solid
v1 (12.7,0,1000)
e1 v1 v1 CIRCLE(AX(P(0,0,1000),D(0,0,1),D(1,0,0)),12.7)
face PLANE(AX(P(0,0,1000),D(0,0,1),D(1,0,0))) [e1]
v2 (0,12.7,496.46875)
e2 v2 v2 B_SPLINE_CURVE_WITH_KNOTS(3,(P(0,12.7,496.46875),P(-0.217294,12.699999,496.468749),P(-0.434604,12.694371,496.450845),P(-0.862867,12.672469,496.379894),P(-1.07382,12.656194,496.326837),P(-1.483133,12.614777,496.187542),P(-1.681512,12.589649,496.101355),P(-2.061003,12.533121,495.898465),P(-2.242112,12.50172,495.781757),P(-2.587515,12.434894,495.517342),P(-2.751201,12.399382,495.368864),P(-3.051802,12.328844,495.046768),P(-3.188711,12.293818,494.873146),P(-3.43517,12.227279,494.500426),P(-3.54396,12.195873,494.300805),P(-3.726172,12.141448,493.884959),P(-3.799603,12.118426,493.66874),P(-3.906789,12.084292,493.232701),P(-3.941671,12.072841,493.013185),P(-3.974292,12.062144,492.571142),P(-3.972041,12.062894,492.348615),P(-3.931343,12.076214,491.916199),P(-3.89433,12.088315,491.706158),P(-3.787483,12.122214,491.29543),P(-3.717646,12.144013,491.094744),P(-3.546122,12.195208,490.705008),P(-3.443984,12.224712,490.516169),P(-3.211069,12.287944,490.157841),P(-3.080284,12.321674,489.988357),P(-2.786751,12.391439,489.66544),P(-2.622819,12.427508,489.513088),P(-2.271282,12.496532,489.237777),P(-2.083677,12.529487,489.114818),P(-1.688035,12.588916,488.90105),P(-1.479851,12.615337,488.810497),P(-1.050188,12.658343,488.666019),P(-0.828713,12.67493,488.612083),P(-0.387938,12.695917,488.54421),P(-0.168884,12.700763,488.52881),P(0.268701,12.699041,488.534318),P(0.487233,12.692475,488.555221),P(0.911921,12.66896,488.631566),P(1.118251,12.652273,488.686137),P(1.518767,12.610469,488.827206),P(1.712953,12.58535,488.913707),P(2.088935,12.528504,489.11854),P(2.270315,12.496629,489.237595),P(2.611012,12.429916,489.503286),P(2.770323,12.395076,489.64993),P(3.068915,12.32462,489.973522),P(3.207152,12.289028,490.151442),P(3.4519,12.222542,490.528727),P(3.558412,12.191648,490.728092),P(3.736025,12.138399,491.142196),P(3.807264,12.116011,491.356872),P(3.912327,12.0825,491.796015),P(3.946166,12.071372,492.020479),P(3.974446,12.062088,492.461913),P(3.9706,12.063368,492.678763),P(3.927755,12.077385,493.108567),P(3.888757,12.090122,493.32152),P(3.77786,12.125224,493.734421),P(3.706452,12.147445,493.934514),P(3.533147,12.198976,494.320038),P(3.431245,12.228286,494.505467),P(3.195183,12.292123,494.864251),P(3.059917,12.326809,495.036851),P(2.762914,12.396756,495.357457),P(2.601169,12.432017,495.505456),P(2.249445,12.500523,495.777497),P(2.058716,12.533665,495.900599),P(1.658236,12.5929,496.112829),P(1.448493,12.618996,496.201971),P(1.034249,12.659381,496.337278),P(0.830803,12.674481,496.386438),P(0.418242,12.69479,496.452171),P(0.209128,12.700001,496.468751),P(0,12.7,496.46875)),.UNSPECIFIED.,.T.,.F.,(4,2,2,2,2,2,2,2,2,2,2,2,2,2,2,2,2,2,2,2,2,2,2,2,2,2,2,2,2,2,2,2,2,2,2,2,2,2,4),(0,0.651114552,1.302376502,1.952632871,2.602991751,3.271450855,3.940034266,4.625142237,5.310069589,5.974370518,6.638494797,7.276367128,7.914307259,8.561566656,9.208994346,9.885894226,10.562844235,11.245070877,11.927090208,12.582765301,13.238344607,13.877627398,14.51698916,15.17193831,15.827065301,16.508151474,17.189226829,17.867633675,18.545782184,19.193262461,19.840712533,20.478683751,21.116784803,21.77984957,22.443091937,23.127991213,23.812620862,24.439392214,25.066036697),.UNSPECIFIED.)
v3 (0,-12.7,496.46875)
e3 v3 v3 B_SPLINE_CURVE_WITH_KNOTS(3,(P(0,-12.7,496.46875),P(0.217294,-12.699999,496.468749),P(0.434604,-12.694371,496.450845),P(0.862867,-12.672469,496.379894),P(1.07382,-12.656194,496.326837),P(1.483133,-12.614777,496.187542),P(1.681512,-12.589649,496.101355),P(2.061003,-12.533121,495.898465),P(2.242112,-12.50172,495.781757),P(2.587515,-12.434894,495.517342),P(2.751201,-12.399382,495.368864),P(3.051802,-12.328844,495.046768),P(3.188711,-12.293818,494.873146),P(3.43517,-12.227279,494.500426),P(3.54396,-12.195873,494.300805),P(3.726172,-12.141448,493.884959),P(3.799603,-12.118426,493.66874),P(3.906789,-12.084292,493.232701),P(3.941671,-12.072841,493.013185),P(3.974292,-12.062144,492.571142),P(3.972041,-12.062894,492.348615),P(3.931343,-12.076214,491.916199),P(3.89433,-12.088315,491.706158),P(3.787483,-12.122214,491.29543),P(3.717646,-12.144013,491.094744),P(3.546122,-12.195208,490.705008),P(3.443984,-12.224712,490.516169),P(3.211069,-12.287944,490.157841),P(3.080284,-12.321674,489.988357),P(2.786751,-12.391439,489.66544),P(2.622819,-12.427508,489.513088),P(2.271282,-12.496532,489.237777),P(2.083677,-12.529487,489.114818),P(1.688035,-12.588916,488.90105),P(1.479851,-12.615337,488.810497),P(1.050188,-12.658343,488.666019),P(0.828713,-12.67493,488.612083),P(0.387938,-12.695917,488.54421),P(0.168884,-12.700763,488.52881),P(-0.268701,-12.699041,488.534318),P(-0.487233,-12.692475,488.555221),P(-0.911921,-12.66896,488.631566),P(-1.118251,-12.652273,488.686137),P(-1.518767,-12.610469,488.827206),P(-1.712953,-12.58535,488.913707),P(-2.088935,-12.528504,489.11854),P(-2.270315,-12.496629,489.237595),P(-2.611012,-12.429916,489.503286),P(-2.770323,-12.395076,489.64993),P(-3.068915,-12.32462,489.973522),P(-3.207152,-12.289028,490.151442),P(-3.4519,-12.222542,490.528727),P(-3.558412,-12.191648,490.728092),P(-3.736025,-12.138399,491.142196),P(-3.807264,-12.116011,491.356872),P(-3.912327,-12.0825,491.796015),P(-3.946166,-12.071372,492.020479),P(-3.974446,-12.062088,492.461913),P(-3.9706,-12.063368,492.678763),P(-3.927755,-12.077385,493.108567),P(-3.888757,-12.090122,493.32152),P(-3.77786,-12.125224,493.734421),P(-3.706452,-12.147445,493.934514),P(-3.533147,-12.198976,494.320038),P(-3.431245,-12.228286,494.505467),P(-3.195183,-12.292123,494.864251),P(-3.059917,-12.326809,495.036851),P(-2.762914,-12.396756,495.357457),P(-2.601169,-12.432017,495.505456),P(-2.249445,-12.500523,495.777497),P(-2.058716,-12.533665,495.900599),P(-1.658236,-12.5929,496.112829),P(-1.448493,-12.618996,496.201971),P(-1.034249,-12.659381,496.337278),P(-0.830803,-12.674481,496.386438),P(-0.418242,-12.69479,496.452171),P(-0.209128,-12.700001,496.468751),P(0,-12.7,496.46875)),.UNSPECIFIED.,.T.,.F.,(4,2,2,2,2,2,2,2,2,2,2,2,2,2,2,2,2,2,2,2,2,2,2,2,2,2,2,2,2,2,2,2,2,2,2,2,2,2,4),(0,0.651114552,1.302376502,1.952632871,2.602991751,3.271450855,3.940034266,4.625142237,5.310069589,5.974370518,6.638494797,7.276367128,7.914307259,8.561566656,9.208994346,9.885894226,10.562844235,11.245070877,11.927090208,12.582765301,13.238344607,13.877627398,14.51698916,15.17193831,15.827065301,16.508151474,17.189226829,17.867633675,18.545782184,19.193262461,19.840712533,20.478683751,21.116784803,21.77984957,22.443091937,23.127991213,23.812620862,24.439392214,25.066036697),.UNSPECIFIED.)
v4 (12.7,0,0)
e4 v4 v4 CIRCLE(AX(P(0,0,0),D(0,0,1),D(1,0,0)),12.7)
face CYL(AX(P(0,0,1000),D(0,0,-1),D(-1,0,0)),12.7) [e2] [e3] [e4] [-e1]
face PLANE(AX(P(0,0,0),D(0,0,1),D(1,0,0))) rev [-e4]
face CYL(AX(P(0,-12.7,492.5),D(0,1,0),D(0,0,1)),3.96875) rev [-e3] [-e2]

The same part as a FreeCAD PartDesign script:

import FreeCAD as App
import Part
import Sketcher
from FreeCAD import Vector
Q = App.Units.Quantity

doc = App.newDocument("Part")
body = doc.addObject("PartDesign::Body", "Body")

sketch1 = doc.addObject("Sketcher::SketchObject", "Sketch")
body.addObject(sketch1)
sketch1.AttachmentSupport = (doc.XY_Plane, [""])
sketch1.MapMode = "FlatFace"
sketch1.addGeometry(Part.Circle(Vector(0, 0, 0), Vector(0, 0, 1), 13), False)
sketch1.addConstraint(Sketcher.Constraint("Coincident", 0, 3, -1, 1))
sketch1.addConstraint(Sketcher.Constraint("Diameter", 0, Q("1 in")))
pad1 = doc.addObject("PartDesign::Pad", "Pad")
body.addObject(pad1)
pad1.Profile = sketch1
pad1.Length = 1000

sketch2 = doc.addObject("Sketcher::SketchObject", "Sketch001")
body.addObject(sketch2)
sketch2.AttachmentSupport = (doc.XZ_Plane, [""])
sketch2.MapMode = "FlatFace"
sketch2.addGeometry(Part.Circle(Vector(0, 492.5, 0), Vector(0, 0, 1), 4), False)
sketch2.addConstraint(Sketcher.Constraint("PointOnObject", 0, 3, -2))
sketch2.addConstraint(Sketcher.Constraint("Diameter", 0, Q("0.3125 in")))
sketch2.addConstraint(Sketcher.Constraint("DistanceY", -1, 1, 0, 3, Q("492.5 mm")))
pocket1 = doc.addObject("PartDesign::Pocket", "Pocket")
body.addObject(pocket1)
pocket1.Profile = sketch2
pocket1.Type = "ThroughAll"
pocket1.Midplane = True

doc.recompute()
